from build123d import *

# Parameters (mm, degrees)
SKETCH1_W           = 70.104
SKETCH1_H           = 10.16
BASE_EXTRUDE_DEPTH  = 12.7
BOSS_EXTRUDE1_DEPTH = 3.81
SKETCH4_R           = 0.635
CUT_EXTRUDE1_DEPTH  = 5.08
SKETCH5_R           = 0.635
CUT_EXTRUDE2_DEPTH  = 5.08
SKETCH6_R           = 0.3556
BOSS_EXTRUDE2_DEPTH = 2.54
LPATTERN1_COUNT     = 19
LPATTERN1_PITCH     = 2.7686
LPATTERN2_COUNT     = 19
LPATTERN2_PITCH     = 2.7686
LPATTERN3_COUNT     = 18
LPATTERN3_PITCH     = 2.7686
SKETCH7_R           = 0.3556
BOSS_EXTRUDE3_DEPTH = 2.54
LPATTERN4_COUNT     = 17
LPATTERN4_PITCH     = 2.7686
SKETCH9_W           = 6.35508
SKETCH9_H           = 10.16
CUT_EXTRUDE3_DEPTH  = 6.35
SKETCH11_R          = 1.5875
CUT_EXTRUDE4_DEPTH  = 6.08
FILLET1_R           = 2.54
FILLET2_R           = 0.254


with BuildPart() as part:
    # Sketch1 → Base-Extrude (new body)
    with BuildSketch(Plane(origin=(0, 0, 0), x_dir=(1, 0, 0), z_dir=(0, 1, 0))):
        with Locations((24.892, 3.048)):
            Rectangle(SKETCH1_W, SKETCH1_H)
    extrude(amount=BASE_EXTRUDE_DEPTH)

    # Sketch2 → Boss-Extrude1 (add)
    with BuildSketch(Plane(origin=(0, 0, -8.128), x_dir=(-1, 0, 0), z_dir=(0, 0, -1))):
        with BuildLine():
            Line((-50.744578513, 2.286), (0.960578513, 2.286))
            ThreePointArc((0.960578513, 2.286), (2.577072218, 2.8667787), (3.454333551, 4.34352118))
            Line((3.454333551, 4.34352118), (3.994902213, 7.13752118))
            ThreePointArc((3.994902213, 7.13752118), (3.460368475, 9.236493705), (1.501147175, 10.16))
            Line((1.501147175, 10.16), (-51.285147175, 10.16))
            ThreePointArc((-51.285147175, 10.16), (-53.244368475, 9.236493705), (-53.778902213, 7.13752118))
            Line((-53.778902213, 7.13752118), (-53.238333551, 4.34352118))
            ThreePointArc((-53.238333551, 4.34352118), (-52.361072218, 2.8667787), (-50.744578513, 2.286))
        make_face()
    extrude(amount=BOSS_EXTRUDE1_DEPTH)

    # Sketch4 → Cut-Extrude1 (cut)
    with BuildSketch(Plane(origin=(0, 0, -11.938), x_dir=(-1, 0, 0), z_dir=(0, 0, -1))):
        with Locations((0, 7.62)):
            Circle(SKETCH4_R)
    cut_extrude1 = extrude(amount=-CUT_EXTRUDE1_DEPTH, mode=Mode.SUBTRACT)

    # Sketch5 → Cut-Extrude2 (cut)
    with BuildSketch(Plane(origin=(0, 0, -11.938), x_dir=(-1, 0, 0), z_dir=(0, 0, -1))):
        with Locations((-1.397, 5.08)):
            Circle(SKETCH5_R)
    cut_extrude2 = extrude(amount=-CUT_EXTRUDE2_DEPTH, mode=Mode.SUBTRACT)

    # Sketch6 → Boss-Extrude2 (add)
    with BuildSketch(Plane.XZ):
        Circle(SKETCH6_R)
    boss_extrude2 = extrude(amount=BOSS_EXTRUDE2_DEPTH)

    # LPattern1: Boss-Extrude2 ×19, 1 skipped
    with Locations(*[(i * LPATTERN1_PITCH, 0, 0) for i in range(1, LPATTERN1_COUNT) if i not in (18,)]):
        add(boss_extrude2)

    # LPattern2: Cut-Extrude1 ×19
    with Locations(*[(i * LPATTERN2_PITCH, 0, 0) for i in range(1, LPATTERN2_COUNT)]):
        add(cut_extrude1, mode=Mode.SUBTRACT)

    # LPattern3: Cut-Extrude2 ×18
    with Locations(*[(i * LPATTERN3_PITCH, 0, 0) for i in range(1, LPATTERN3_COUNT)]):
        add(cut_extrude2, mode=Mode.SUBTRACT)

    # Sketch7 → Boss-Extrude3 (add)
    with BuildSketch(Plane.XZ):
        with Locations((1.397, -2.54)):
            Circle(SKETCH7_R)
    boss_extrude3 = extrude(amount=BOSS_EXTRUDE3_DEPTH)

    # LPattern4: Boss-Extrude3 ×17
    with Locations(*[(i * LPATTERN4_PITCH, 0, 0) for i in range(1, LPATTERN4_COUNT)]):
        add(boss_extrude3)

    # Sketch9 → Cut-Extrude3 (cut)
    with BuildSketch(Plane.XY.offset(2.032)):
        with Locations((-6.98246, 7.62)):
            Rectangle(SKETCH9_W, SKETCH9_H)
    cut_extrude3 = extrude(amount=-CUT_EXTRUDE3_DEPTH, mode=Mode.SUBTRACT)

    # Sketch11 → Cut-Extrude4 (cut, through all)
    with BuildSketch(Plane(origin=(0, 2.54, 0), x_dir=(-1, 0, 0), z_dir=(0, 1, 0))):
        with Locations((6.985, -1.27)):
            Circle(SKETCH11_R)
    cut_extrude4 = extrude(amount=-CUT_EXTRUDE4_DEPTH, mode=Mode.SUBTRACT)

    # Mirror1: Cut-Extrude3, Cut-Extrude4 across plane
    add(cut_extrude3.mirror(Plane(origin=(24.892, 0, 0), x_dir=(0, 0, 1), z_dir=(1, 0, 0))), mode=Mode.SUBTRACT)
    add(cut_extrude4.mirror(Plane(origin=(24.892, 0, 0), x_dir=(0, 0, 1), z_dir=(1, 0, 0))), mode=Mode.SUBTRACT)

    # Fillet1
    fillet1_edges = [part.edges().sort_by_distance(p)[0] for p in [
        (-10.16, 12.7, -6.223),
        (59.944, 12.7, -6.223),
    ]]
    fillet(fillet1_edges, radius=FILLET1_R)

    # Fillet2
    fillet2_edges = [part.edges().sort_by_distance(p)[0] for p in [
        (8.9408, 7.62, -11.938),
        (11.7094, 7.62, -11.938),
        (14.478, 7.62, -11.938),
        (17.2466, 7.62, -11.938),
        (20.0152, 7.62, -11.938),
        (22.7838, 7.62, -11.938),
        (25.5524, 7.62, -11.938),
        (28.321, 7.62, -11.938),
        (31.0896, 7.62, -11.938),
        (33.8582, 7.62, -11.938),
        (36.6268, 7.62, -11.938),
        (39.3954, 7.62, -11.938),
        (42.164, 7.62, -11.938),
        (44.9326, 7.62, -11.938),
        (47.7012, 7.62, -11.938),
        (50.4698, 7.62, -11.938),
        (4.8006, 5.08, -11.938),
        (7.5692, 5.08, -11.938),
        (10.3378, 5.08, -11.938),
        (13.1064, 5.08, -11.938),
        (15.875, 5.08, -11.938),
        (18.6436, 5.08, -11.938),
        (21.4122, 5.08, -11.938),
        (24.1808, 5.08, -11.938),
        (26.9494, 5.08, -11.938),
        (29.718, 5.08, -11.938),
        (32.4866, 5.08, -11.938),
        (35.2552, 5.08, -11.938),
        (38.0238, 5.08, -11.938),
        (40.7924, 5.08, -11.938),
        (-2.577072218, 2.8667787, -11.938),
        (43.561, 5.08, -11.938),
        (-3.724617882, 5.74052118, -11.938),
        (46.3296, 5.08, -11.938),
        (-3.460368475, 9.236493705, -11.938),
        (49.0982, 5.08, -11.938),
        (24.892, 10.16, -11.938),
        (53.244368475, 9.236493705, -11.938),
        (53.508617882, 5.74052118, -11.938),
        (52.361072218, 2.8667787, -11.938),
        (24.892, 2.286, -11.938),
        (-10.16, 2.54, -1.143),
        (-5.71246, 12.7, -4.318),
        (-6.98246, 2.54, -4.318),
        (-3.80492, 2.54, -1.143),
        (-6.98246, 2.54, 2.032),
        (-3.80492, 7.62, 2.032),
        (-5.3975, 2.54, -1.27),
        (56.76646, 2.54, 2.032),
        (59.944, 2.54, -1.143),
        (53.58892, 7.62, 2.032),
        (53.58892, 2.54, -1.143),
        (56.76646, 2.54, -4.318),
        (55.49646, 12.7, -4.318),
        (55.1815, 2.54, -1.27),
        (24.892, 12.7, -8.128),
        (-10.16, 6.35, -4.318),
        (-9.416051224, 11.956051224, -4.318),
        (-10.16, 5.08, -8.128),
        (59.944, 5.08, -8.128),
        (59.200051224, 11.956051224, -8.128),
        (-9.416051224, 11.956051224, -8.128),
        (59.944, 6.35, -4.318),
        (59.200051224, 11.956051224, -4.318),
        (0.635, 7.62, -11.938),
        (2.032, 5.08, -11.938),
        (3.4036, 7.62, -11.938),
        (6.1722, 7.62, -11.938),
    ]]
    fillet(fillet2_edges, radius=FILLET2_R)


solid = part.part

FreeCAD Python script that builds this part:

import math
import FreeCAD as App
import Part
import Sketcher
Q = App.Units.Quantity


def edges_at(feature, points):
    """Names of the edges that pass closest to the given points."""
    edges = feature.Shape.Edges
    near = lambda p: min(range(len(edges)), key=lambda i: edges[i].distToShape(Part.Vertex(*p))[0])
    return sorted({f"Edge{near(p) + 1}" for p in points})

doc = App.newDocument("Part")
body = doc.addObject("PartDesign::Body", "Body")

sketch1 = body.newObject("Sketcher::SketchObject", "Sketch")
sketch1.AttachmentSupport = (doc.getObject("XZ_Plane"), [""])
sketch1.MapMode = "FlatFace"
sketch1.addGeometry([
    Part.LineSegment(App.Vector(-10.16, -8.128, 0), App.Vector(-10.16, 2.032, 0)),
    Part.LineSegment(App.Vector(-10.16, 2.032, 0), App.Vector(59.944, 2.032, 0)),
    Part.LineSegment(App.Vector(59.944, 2.032, 0), App.Vector(59.944, -8.128, 0)),
    Part.LineSegment(App.Vector(59.944, -8.128, 0), App.Vector(-10.16, -8.128, 0)),
], False)
sketch1.addConstraint([
    Sketcher.Constraint("Coincident", 0, 2, 1, 1),
    Sketcher.Constraint("Coincident", 1, 2, 2, 1),
    Sketcher.Constraint("Coincident", 2, 2, 3, 1),
    Sketcher.Constraint("Coincident", 3, 2, 0, 1),
    Sketcher.Constraint("Vertical", 0),
    Sketcher.Constraint("Horizontal", 1),
    Sketcher.Constraint("Vertical", 2),
    Sketcher.Constraint("Horizontal", 3),
    Sketcher.Constraint("DistanceY", 0, 1, 0, 2, Q("0.4 in")),
    Sketcher.Constraint("DistanceX", 1, 1, 1, 2, Q("2.76 in")),
    Sketcher.Constraint("DistanceX", 0, 2, -1, 1, Q("0.4 in")),
    Sketcher.Constraint("DistanceY", -1, 1, 0, 2, Q("0.08 in")),
])
pad1 = body.newObject("PartDesign::Pad", "Pad")
pad1.Profile = sketch1
pad1.Length = Q("0.5 in")
pad1.Reversed = True

sketch2 = body.newObject("Sketcher::SketchObject", "Sketch001")
sketch2.AttachmentSupport = (doc.getObject("XY_Plane"), [""])
sketch2.MapMode = "FlatFace"
sketch2.AttachmentOffset = App.Placement(App.Vector(0, 0, -0.32 * 25.4), App.Rotation())
sketch2.addGeometry([
    Part.LineSegment(App.Vector(50.744579, 2.286, 0), App.Vector(-0.960579, 2.286, 0)),
    Part.ArcOfCircle(Part.Circle(App.Vector(-0.960579, 4.826, 0), App.Vector(0, 0, 1), 2.54), math.radians(-169.05), math.radians(-90)),
    Part.LineSegment(App.Vector(-3.454334, 4.343521, 0), App.Vector(-3.994902, 7.137521, 0)),
    Part.ArcOfCircle(Part.Circle(App.Vector(-1.501147, 7.62, 0), App.Vector(0, 0, 1), 2.54), math.radians(90), math.radians(190.95)),
    Part.LineSegment(App.Vector(-1.501147, 10.16, 0), App.Vector(51.285147, 10.16, 0)),
    Part.ArcOfCircle(Part.Circle(App.Vector(51.285147, 7.62, 0), App.Vector(0, 0, 1), 2.54), math.radians(-10.95), math.radians(90)),
    Part.LineSegment(App.Vector(53.778902, 7.137521, 0), App.Vector(53.238334, 4.343521, 0)),
    Part.ArcOfCircle(Part.Circle(App.Vector(50.744579, 4.826, 0), App.Vector(0, 0, 1), 2.54), math.radians(-90), math.radians(-10.95)),
], False)
sketch2.addConstraint([
    Sketcher.Constraint("Tangent", 0, 2, 1, 2),
    Sketcher.Constraint("Tangent", 1, 1, 2, 1),
    Sketcher.Constraint("Tangent", 2, 2, 3, 2),
    Sketcher.Constraint("Tangent", 3, 1, 4, 1),
    Sketcher.Constraint("Tangent", 4, 2, 5, 2),
    Sketcher.Constraint("Tangent", 5, 1, 6, 1),
    Sketcher.Constraint("Tangent", 6, 2, 7, 2),
    Sketcher.Constraint("Tangent", 7, 1, 0, 1),
    Sketcher.Constraint("Horizontal", 0),
    Sketcher.Constraint("Horizontal", 4),
    Sketcher.Constraint("Equal", 1, 3),
    Sketcher.Constraint("Equal", 3, 5),
    Sketcher.Constraint("Equal", 5, 7),
    Sketcher.Constraint("Horizontal", 2, 2, 5, 1),
    Sketcher.Constraint("Radius", 1, Q("0.1 in")),
    Sketcher.Constraint("DistanceY", -1, 1, 3, 3, Q("0.3 in")),
    Sketcher.Constraint("DistanceY", -1, 1, 1, 3, Q("0.19 in")),
    Sketcher.Constraint("Angle", 2, Q("100.95 deg")),
    Sketcher.Constraint("DistanceX", 0, 2, 0, 1, 51.705157),
    Sketcher.Constraint("DistanceX", 1, 3, -1, 1, 0.960579),
])
pad2 = body.newObject("PartDesign::Pad", "Pad001")
pad2.Profile = sketch2
pad2.Length = Q("0.15 in")
pad2.Reversed = True

sketch3 = body.newObject("Sketcher::SketchObject", "Sketch002")
sketch3.AttachmentSupport = (doc.getObject("XY_Plane"), [""])
sketch3.MapMode = "FlatFace"
sketch3.AttachmentOffset = App.Placement(App.Vector(0, 0, -0.47 * 25.4), App.Rotation())
sketch3.addGeometry(Part.Circle(App.Vector(0, 7.62, 0), App.Vector(0, 0, 1), 0.635), False)
sketch3.addConstraint([
    Sketcher.Constraint("PointOnObject", 0, 3, -2),
    Sketcher.Constraint("Diameter", 0, Q("0.05 in")),
    Sketcher.Constraint("DistanceY", -1, 1, 0, 3, Q("0.3 in")),
])
pocket1 = body.newObject("PartDesign::Pocket", "Pocket")
pocket1.Profile = sketch3
pocket1.Length = Q("0.2 in")
pocket1.Reversed = True

sketch4 = body.newObject("Sketcher::SketchObject", "Sketch003")
sketch4.AttachmentSupport = (doc.getObject("XY_Plane"), [""])
sketch4.MapMode = "FlatFace"
sketch4.AttachmentOffset = App.Placement(App.Vector(0, 0, -0.47 * 25.4), App.Rotation())
sketch4.addGeometry(Part.Circle(App.Vector(1.397, 5.08, 0), App.Vector(0, 0, 1), 0.635), False)
sketch4.addConstraint([
    Sketcher.Constraint("Diameter", 0, Q("0.05 in")),
    Sketcher.Constraint("DistanceY", -1, 1, 0, 3, Q("0.2 in")),
    Sketcher.Constraint("DistanceX", -1, 1, 0, 3, Q("0.055 in")),
])
pocket2 = body.newObject("PartDesign::Pocket", "Pocket001")
pocket2.Profile = sketch4
pocket2.Length = Q("0.2 in")
pocket2.Reversed = True

sketch5 = body.newObject("Sketcher::SketchObject", "Sketch004")
sketch5.AttachmentSupport = (doc.getObject("XZ_Plane"), [""])
sketch5.MapMode = "FlatFace"
sketch5.addGeometry(Part.Circle(App.Vector(0, 0, 0), App.Vector(0, 0, 1), 0.3556), False)
sketch5.addConstraint([
    Sketcher.Constraint("Coincident", 0, 3, -1, 1),
    Sketcher.Constraint("Diameter", 0, Q("0.028 in")),
])
pad3 = body.newObject("PartDesign::Pad", "Pad002")
pad3.Profile = sketch5
pad3.Length = Q("0.1 in")
doc.recompute()

linearpattern = body.newObject("PartDesign::LinearPattern", "LinearPattern")
linearpattern.Originals = [pad3]
linearpattern.Direction = (doc.getObject("X_Axis"), [""])
linearpattern.Mode = "offset"
linearpattern.Offset = Q("0.109 in")
linearpattern.Occurrences = 18
body.Tip = linearpattern
doc.recompute()

linearpattern2 = body.newObject("PartDesign::LinearPattern", "LinearPattern001")
linearpattern2.Originals = [pocket1]
linearpattern2.Direction = (doc.getObject("X_Axis"), [""])
linearpattern2.Mode = "offset"
linearpattern2.Offset = Q("0.109 in")
linearpattern2.Occurrences = 19
body.Tip = linearpattern2
doc.recompute()

linearpattern3 = body.newObject("PartDesign::LinearPattern", "LinearPattern002")
linearpattern3.Originals = [pocket2]
linearpattern3.Direction = (doc.getObject("X_Axis"), [""])
linearpattern3.Mode = "offset"
linearpattern3.Offset = Q("0.109 in")
linearpattern3.Occurrences = 18
body.Tip = linearpattern3

sketch6 = body.newObject("Sketcher::SketchObject", "Sketch005")
sketch6.AttachmentSupport = (doc.getObject("XZ_Plane"), [""])
sketch6.MapMode = "FlatFace"
sketch6.addGeometry(Part.Circle(App.Vector(1.397, -2.54, 0), App.Vector(0, 0, 1), 0.3556), False)
sketch6.addConstraint([
    Sketcher.Constraint("Diameter", 0, Q("0.028 in")),
    Sketcher.Constraint("DistanceY", 0, 3, -1, 1, Q("0.1 in")),
    Sketcher.Constraint("DistanceX", -1, 1, 0, 3, Q("0.055 in")),
])
pad4 = body.newObject("PartDesign::Pad", "Pad003")
pad4.Profile = sketch6
pad4.Length = Q("0.1 in")
doc.recompute()

linearpattern4 = body.newObject("PartDesign::LinearPattern", "LinearPattern003")
linearpattern4.Originals = [pad4]
linearpattern4.Direction = (doc.getObject("X_Axis"), [""])
linearpattern4.Mode = "offset"
linearpattern4.Offset = Q("0.109 in")
linearpattern4.Occurrences = 17
body.Tip = linearpattern4

sketch7 = body.newObject("Sketcher::SketchObject", "Sketch006")
sketch7.AttachmentSupport = (doc.getObject("XY_Plane"), [""])
sketch7.MapMode = "FlatFace"
sketch7.AttachmentOffset = App.Placement(App.Vector(0, 0, 0.08 * 25.4), App.Rotation())
sketch7.addGeometry([
    Part.LineSegment(App.Vector(-10.16, 12.7, 0), App.Vector(-10.16, 2.54, 0)),
    Part.LineSegment(App.Vector(-10.16, 2.54, 0), App.Vector(-3.80492, 2.54, 0)),
    Part.LineSegment(App.Vector(-3.80492, 2.54, 0), App.Vector(-3.80492, 12.7, 0)),
    Part.LineSegment(App.Vector(-3.80492, 12.7, 0), App.Vector(-10.16, 12.7, 0)),
], False)
sketch7.addConstraint([
    Sketcher.Constraint("Coincident", 0, 2, 1, 1),
    Sketcher.Constraint("Coincident", 1, 2, 2, 1),
    Sketcher.Constraint("Coincident", 2, 2, 3, 1),
    Sketcher.Constraint("Coincident", 3, 2, 0, 1),
    Sketcher.Constraint("Vertical", 0),
    Sketcher.Constraint("Horizontal", 1),
    Sketcher.Constraint("Vertical", 2),
    Sketcher.Constraint("Horizontal", 3),
    Sketcher.Constraint("DistanceY", 0, 2, 0, 1, Q("0.4 in")),
    Sketcher.Constraint("DistanceX", 0, 2, -1, 1, Q("0.4 in")),
    Sketcher.Constraint("DistanceY", -1, 1, 0, 2, Q("0.1 in")),
    Sketcher.Constraint("DistanceX", 1, 1, 1, 2, Q("0.2502 in")),
])
pocket3 = body.newObject("PartDesign::Pocket", "Pocket002")
pocket3.Profile = sketch7
pocket3.Length = Q("0.25 in")

sketch8 = body.newObject("Sketcher::SketchObject", "Sketch007")
sketch8.AttachmentSupport = (doc.getObject("XZ_Plane"), [""])
sketch8.MapMode = "FlatFace"
sketch8.AttachmentOffset = App.Placement(App.Vector(0, 0, -0.1 * 25.4), App.Rotation())
sketch8.addGeometry(Part.Circle(App.Vector(-6.985, -1.27, 0), App.Vector(0, 0, 1), 1.5875), False)
sketch8.addConstraint([
    Sketcher.Constraint("Diameter", 0, Q("0.125 in")),
    Sketcher.Constraint("DistanceY", 0, 3, -1, 1, Q("0.05 in")),
    Sketcher.Constraint("DistanceX", 0, 3, -1, 1, Q("0.275 in")),
])
pocket4 = body.newObject("PartDesign::Pocket", "Pocket003")
pocket4.Profile = sketch8
pocket4.Type = "ThroughAll"
pocket4.Reversed = True
doc.recompute()

datumplane = body.newObject("PartDesign::Plane", "DatumPlane")
datumplane.AttachmentSupport = (doc.getObject("YZ_Plane"), [""])
datumplane.MapMode = "FlatFace"
datumplane.AttachmentOffset = App.Placement(App.Vector(0, 0, 0.98 * 25.4), App.Rotation())
mirrored = body.newObject("PartDesign::Mirrored", "Mirrored")
mirrored.Originals = [pocket3, pocket4]
mirrored.MirrorPlane = (datumplane, [""])
body.Tip = mirrored
doc.recompute()

fillet = body.newObject("PartDesign::Fillet", "Fillet")
fillet.Base = (mirrored, edges_at(mirrored, [(-10.16, 12.7, -6.223), (59.944, 12.7, -6.223)]))
fillet.Radius = Q("0.1 in")
doc.recompute()

fillet2 = body.newObject("PartDesign::Fillet", "Fillet001")
fillet2.Base = (fillet, edges_at(fillet, [
    (8.941, 7.62, -11.938),
    (11.709, 7.62, -11.938),
    (14.478, 7.62, -11.938),
    (17.247, 7.62, -11.938),
    (20.015, 7.62, -11.938),
    (22.784, 7.62, -11.938),
    (25.552, 7.62, -11.938),
    (28.321, 7.62, -11.938),
    (31.09, 7.62, -11.938),
    (33.858, 7.62, -11.938),
    (36.627, 7.62, -11.938),
    (39.395, 7.62, -11.938),
    (42.164, 7.62, -11.938),
    (44.933, 7.62, -11.938),
    (47.701, 7.62, -11.938),
    (50.47, 7.62, -11.938),
    (4.801, 5.08, -11.938),
    (7.569, 5.08, -11.938),
    (10.338, 5.08, -11.938),
    (13.106, 5.08, -11.938),
    (15.875, 5.08, -11.938),
    (18.644, 5.08, -11.938),
    (21.412, 5.08, -11.938),
    (24.181, 5.08, -11.938),
    (26.949, 5.08, -11.938),
    (29.718, 5.08, -11.938),
    (32.487, 5.08, -11.938),
    (35.255, 5.08, -11.938),
    (38.024, 5.08, -11.938),
    (40.792, 5.08, -11.938),
    (-2.577, 2.867, -11.938),
    (43.561, 5.08, -11.938),
    (-3.725, 5.741, -11.938),
    (46.33, 5.08, -11.938),
    (-3.46, 9.236, -11.938),
    (49.098, 5.08, -11.938),
    (24.892, 10.16, -11.938),
    (53.244, 9.236, -11.938),
    (53.509, 5.741, -11.938),
    (52.361, 2.867, -11.938),
    (24.892, 2.286, -11.938),
    (-10.16, 2.54, -1.143),
    (-5.712, 12.7, -4.318),
    (-6.982, 2.54, -4.318),
    (-3.805, 2.54, -1.143),
    (-6.982, 2.54, 2.032),
    (-3.805, 7.62, 2.032),
    (-5.397, 2.54, -1.27),
    (56.766, 2.54, 2.032),
    (59.944, 2.54, -1.143),
    (53.589, 7.62, 2.032),
    (53.589, 2.54, -1.143),
    (56.766, 2.54, -4.318),
    (55.496, 12.7, -4.318),
    (55.181, 2.54, -1.27),
    (24.892, 12.7, -8.128),
    (-10.16, 6.35, -4.318),
    (-9.416, 11.956, -4.318),
    (-10.16, 5.08, -8.128),
    (59.944, 5.08, -8.128),
    (59.2, 11.956, -8.128),
    (-9.416, 11.956, -8.128),
    (59.944, 6.35, -4.318),
    (59.2, 11.956, -4.318),
    (0.635, 7.62, -11.938),
    (2.032, 5.08, -11.938),
    (3.404, 7.62, -11.938),
    (6.172, 7.62, -11.938),
]))
fillet2.Radius = Q("0.01 in")

doc.recompute()
